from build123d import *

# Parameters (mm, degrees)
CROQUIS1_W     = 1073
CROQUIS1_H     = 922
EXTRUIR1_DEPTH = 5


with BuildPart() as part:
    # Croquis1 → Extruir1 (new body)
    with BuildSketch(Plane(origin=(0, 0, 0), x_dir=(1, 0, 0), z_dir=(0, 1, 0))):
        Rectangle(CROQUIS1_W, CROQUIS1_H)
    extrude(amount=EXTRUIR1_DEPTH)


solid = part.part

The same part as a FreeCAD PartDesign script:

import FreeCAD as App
import Part
import Sketcher
from FreeCAD import Vector
Q = App.Units.Quantity


def add_polygon(sketch, points):
    """Adds a closed chain of lines whose ends are joined by coincident constraints."""
    first, n = sketch.GeometryCount, len(points)
    for a, b in zip(points, points[1:] + points[:1]):
        sketch.addGeometry(Part.LineSegment(App.Vector(*a, 0), App.Vector(*b, 0)), False)
    for i in range(n):
        sketch.addConstraint(Sketcher.Constraint("Coincident", first + i, 2, first + (i + 1) % n, 1))

doc = App.newDocument("Part")
params = doc.addObject("Spreadsheet::Sheet", "Params")
for row, (alias, value) in enumerate([
    ("sketch1_width", "1073 mm"),
    ("sketch1_height", "922 mm"),
    ("pad1_length", "5 mm"),
], start=1):
    params.set(f"A{row}", alias)
    params.set(f"B{row}", "=" + value)
    params.setAlias(f"B{row}", alias)

body = doc.addObject("PartDesign::Body", "Body")

sketch1 = body.newObject("Sketcher::SketchObject", "Sketch")
sketch1.AttachmentSupport = (doc.getObject("XZ_Plane"), [""])
sketch1.MapMode = "FlatFace"
add_polygon(sketch1, [(-536, -461), (-536, 461), (536, 461), (536, -461)])
sketch1.addConstraint([
    Sketcher.Constraint("Vertical", 0),
    Sketcher.Constraint("Horizontal", 1),
    Sketcher.Constraint("Vertical", 2),
    Sketcher.Constraint("Horizontal", 3),
    Sketcher.Constraint("Symmetric", 0, 2, 2, 2, -1, 1),
    Sketcher.Constraint("DistanceX", 1, 1, 1, 2, Q("1073 mm")),
    Sketcher.Constraint("DistanceY", 0, 1, 0, 2, Q("922 mm")),
])
sketch1.setExpression("Constraints[9]", "Params.sketch1_width")
sketch1.setExpression("Constraints[10]", "Params.sketch1_height")
pad1 = body.newObject("PartDesign::Pad", "Pad")
pad1.Profile = sketch1
pad1.setExpression("Length", "Params.pad1_length")
pad1.Reversed = True

doc.recompute()
